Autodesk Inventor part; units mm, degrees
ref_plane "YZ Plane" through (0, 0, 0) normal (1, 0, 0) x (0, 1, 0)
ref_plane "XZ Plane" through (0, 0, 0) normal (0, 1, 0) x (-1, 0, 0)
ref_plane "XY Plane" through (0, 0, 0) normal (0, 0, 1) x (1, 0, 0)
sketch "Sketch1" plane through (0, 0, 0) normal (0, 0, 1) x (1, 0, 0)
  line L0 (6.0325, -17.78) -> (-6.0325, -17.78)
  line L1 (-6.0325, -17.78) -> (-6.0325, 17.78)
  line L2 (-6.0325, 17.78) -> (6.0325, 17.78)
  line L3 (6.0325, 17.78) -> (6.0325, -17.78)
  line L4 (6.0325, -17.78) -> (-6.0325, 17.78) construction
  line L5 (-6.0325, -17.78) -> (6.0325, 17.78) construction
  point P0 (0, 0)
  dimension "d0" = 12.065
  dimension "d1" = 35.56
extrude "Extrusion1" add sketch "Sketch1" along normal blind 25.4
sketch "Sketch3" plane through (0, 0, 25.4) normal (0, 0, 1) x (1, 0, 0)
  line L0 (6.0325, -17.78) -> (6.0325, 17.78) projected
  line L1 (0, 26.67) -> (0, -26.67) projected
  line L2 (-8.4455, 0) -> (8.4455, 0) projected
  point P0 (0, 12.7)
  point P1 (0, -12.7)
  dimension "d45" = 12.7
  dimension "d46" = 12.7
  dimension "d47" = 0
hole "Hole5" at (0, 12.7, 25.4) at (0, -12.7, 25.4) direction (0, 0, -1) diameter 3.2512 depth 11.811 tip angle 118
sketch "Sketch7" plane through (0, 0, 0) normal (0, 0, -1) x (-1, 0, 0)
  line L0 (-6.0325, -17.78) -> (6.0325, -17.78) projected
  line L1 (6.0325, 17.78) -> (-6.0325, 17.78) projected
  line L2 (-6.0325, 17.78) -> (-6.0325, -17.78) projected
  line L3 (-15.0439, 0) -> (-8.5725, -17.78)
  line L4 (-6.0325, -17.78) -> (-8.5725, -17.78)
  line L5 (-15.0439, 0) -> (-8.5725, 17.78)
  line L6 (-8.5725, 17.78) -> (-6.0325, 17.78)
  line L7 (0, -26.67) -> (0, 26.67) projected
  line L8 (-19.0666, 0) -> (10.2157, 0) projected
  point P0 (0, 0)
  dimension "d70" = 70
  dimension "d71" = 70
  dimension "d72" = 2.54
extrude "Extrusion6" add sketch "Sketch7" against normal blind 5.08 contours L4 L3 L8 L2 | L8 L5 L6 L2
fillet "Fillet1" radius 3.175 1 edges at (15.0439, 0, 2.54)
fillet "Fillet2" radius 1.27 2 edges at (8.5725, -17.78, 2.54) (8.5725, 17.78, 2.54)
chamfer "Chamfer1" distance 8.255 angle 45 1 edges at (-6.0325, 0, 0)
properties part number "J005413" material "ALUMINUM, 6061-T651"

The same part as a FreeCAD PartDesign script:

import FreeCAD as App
import Part
import Sketcher
from FreeCAD import Vector
Q = App.Units.Quantity


def edges_at(feature, points):
    """Names of the edges that pass closest to the given points."""
    edges = feature.Shape.Edges
    near = lambda p: min(range(len(edges)), key=lambda i: edges[i].distToShape(Part.Vertex(*p))[0])
    return sorted({f"Edge{near(p) + 1}" for p in points})

doc = App.newDocument("Part")
body = doc.addObject("PartDesign::Body", "Body")

# Sketch on XY plane
sketch1 = doc.addObject("Sketcher::SketchObject", "Sketch")
body.addObject(sketch1)
sketch1.AttachmentSupport = (doc.XY_Plane, [""])
sketch1.MapMode = "FlatFace"
sketch1.addGeometry([
    Part.LineSegment(Vector(-6, -18, 0), Vector(6, -18, 0)),
    Part.LineSegment(Vector(6, -18, 0), Vector(6, 18, 0)),
    Part.LineSegment(Vector(6, 18, 0), Vector(-6, 18, 0)),
    Part.LineSegment(Vector(-6, 18, 0), Vector(-6, -18, 0)),
], False)
sketch1.addConstraint([
    Sketcher.Constraint("Coincident", 0, 2, 1, 1),
    Sketcher.Constraint("Coincident", 1, 2, 2, 1),
    Sketcher.Constraint("Coincident", 2, 2, 3, 1),
    Sketcher.Constraint("Coincident", 3, 2, 0, 1),
    Sketcher.Constraint("Horizontal", 0),
    Sketcher.Constraint("Vertical", 1),
    Sketcher.Constraint("Horizontal", 2),
    Sketcher.Constraint("Vertical", 3),
    Sketcher.Constraint("Symmetric", 0, 2, 2, 2, -1, 1),
    Sketcher.Constraint("DistanceY", 1, 1, 1, 2, Q("1.4 in")),
    Sketcher.Constraint("DistanceX", 0, 1, 0, 2, Q("0.475 in")),
])
pad1 = doc.addObject("PartDesign::Pad", "Pad")
body.addObject(pad1)
pad1.Profile = sketch1
pad1.Length = Q("1 in")

# Sketch on XY plane
sketch2 = doc.addObject("Sketcher::SketchObject", "Sketch001")
body.addObject(sketch2)
sketch2.AttachmentSupport = (doc.XY_Plane, [""])
sketch2.MapMode = "FlatFace"
sketch2.AttachmentOffset = App.Placement(Vector(0, 0, 1 * 25.4), App.Rotation())
sketch2.addGeometry([
    Part.Circle(Vector(0, 12.7, 0), Vector(0, 0, 1), 1.6),
    Part.Circle(Vector(0, -12.7, 0), Vector(0, 0, 1), 1.6),
], False)
sketch2.addConstraint([
    Sketcher.Constraint("Equal", 0, 1),
    Sketcher.Constraint("Symmetric", 0, 3, 1, 3, -1, 1),
    Sketcher.Constraint("PointOnObject", 0, 3, -2),
    Sketcher.Constraint("Diameter", 0, Q("0.128 in")),
    Sketcher.Constraint("DistanceY", 1, 3, 0, 3, Q("1 in")),
])
doc.recompute()
hole = doc.addObject("PartDesign::Hole", "Hole")
body.addObject(hole)
hole.Profile = sketch2
hole.ThreadType = "None"
hole.Diameter = Q("0.128 in")
hole.DepthType = "Dimension"
hole.Depth = Q("0.465 in")
hole.DrillPoint = "Angled"
hole.DrillPointAngle = 118

# Sketch on XY plane
sketch3 = doc.addObject("Sketcher::SketchObject", "Sketch002")
body.addObject(sketch3)
sketch3.AttachmentSupport = (doc.XY_Plane, [""])
sketch3.MapMode = "FlatFace"
sketch3.addGeometry([
    Part.LineSegment(Vector(8.6, -17.8, 0), Vector(6, -17.8, 0)),  # 0
    Part.LineSegment(Vector(6, -17.8, 0), Vector(6, 17.8, 0)),  # 1
    Part.LineSegment(Vector(6, 17.8, 0), Vector(8.6, 17.8, 0)),  # 2
    Part.LineSegment(Vector(8.6, 17.8, 0), Vector(15, 0, 0)),  # 3
    Part.LineSegment(Vector(15, 0, 0), Vector(8.6, -17.8, 0)),  # 4
], False)
sketch3.addConstraint([
    Sketcher.Constraint("Coincident", 0, 2, 1, 1),
    Sketcher.Constraint("Coincident", 1, 2, 2, 1),
    Sketcher.Constraint("Coincident", 2, 2, 3, 1),
    Sketcher.Constraint("Coincident", 3, 2, 4, 1),
    Sketcher.Constraint("Coincident", 4, 2, 0, 1),
    Sketcher.Constraint("Horizontal", 0),
    Sketcher.Constraint("Vertical", 1),
    Sketcher.Constraint("Horizontal", 2),
    Sketcher.Constraint("Symmetric", 2, 2, 4, 2, -1),
    Sketcher.Constraint("PointOnObject", 3, 2, -1),
    Sketcher.Constraint("DistanceX", 0, 2, 0, 1, Q("0.1 in")),
    Sketcher.Constraint("Angle", 3, Q("-70 deg")),
    Sketcher.Constraint("DistanceY", 1, 1, 1, 2, Q("1.4 in")),
    Sketcher.Constraint("DistanceX", -1, 1, 0, 2, Q("0.2375 in")),
])
pad2 = doc.addObject("PartDesign::Pad", "Pad001")
body.addObject(pad2)
pad2.Profile = sketch3
pad2.Length = Q("0.2 in")
doc.recompute()

fillet = doc.addObject("PartDesign::Fillet", "Fillet")
body.addObject(fillet)
fillet.Base = (pad2, edges_at(pad2, [(15.044, 0, 2.54)]))
fillet.Radius = Q("0.125 in")
doc.recompute()

fillet2 = doc.addObject("PartDesign::Fillet", "Fillet001")
body.addObject(fillet2)
fillet2.Base = (fillet, edges_at(fillet, [(8.572, -17.78, 2.54), (8.572, 17.78, 2.54)]))
fillet2.Radius = Q("0.05 in")
doc.recompute()

chamfer = doc.addObject("PartDesign::Chamfer", "Chamfer")
body.addObject(chamfer)
chamfer.Base = (fillet2, edges_at(fillet2, [(-6.032, 0, 0)]))
chamfer.Size = Q("0.325 in")

doc.recompute()
